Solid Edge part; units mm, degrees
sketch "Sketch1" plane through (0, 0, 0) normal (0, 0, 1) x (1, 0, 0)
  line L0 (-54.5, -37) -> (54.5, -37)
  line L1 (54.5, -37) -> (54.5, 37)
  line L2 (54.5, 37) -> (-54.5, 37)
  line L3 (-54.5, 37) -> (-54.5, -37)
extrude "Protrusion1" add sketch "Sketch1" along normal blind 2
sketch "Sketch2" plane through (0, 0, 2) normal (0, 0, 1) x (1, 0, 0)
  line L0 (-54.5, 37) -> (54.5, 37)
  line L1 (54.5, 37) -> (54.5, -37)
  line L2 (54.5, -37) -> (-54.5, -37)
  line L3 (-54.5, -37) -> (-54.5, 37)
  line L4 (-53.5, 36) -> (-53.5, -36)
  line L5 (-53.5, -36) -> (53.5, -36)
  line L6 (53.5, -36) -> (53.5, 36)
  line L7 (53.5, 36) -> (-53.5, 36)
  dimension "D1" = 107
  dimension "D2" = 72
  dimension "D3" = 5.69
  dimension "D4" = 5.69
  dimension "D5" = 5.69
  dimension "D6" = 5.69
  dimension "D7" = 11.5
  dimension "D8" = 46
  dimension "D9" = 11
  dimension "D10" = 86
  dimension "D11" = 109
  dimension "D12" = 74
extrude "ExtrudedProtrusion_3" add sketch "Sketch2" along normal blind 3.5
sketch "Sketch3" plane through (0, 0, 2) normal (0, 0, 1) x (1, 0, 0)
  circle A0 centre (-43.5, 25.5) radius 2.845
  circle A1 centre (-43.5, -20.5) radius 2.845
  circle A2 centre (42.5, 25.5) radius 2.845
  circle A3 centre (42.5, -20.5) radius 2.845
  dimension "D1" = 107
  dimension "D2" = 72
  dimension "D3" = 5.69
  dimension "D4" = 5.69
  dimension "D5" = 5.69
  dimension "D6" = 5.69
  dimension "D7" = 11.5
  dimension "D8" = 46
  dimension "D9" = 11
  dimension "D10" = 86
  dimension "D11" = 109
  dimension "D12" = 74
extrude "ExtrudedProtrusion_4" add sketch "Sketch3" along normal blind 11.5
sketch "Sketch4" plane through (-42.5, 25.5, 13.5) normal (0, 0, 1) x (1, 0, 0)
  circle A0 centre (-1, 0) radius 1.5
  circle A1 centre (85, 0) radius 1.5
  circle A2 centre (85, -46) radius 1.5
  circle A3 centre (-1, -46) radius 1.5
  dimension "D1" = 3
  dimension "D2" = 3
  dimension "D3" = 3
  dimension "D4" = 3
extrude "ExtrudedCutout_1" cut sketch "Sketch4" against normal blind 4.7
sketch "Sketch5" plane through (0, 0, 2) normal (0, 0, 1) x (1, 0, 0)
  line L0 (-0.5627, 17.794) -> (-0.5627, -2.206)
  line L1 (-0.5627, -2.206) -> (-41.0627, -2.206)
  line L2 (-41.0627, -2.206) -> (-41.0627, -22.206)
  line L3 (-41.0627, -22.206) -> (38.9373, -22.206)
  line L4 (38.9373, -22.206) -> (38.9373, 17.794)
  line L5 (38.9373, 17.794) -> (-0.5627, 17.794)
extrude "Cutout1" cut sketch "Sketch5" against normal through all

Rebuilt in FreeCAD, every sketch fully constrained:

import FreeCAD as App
import Part
import Sketcher

V = App.Vector
Q = App.Units.Quantity

doc = App.newDocument("Part")
body = doc.addObject("PartDesign::Body", "Body")

sketch1 = body.newObject("Sketcher::SketchObject", "Sketch")
sketch1.AttachmentSupport = (doc.getObject("XY_Plane"), [""])
sketch1.MapMode = "FlatFace"
sketch1.addGeometry([
    Part.LineSegment(V(-54, 37, 0), V(-54, -37, 0)),
    Part.LineSegment(V(-54, -37, 0), V(54, -37, 0)),
    Part.LineSegment(V(54, -37, 0), V(54, 37, 0)),
    Part.LineSegment(V(54, 37, 0), V(-54, 37, 0)),
], False)
sketch1.addConstraint([
    Sketcher.Constraint("Coincident", 0, 2, 1, 1),
    Sketcher.Constraint("Coincident", 1, 2, 2, 1),
    Sketcher.Constraint("Coincident", 2, 2, 3, 1),
    Sketcher.Constraint("Coincident", 3, 2, 0, 1),
    Sketcher.Constraint("Vertical", 0),
    Sketcher.Constraint("Horizontal", 1),
    Sketcher.Constraint("Vertical", 2),
    Sketcher.Constraint("Horizontal", 3),
    Sketcher.Constraint("Symmetric", 0, 2, 2, 2, -1, 1),
    Sketcher.Constraint("DistanceX", 1, 1, 1, 2, Q("109 mm")),
    Sketcher.Constraint("DistanceY", 0, 2, 0, 1, Q("74 mm")),
])
pad1 = body.newObject("PartDesign::Pad", "Pad")
pad1.Profile = sketch1
pad1.Length = 2

sketch2 = body.newObject("Sketcher::SketchObject", "Sketch001")
sketch2.AttachmentSupport = (doc.getObject("XY_Plane"), [""])
sketch2.MapMode = "FlatFace"
sketch2.AttachmentOffset = App.Placement(V(0, 0, 2), App.Rotation())
sketch2.addGeometry([
    Part.LineSegment(V(54, 37, 0), V(-54, 37, 0)),
    Part.LineSegment(V(-54, 37, 0), V(-54, -37, 0)),
    Part.LineSegment(V(-54, -37, 0), V(54, -37, 0)),
    Part.LineSegment(V(54, -37, 0), V(54, 37, 0)),
    Part.LineSegment(V(-54, -36, 0), V(-54, 36, 0)),
    Part.LineSegment(V(-54, 36, 0), V(54, 36, 0)),
    Part.LineSegment(V(54, 36, 0), V(54, -36, 0)),
    Part.LineSegment(V(54, -36, 0), V(-54, -36, 0)),
], False)
sketch2.addConstraint([
    Sketcher.Constraint("Coincident", 0, 2, 1, 1),
    Sketcher.Constraint("Coincident", 1, 2, 2, 1),
    Sketcher.Constraint("Coincident", 2, 2, 3, 1),
    Sketcher.Constraint("Coincident", 3, 2, 0, 1),
    Sketcher.Constraint("Coincident", 4, 2, 5, 1),
    Sketcher.Constraint("Coincident", 5, 2, 6, 1),
    Sketcher.Constraint("Coincident", 6, 2, 7, 1),
    Sketcher.Constraint("Coincident", 7, 2, 4, 1),
    Sketcher.Constraint("Horizontal", 0),
    Sketcher.Constraint("Vertical", 1),
    Sketcher.Constraint("Horizontal", 2),
    Sketcher.Constraint("Vertical", 3),
    Sketcher.Constraint("Vertical", 4),
    Sketcher.Constraint("Horizontal", 5),
    Sketcher.Constraint("Vertical", 6),
    Sketcher.Constraint("Horizontal", 7),
    Sketcher.Constraint("Symmetric", 0, 2, 2, 2, -1, 1),
    Sketcher.Constraint("Symmetric", 4, 2, 6, 2, -1, 1),
    Sketcher.Constraint("DistanceX", 0, 2, 0, 1, Q("109 mm")),
    Sketcher.Constraint("DistanceX", 5, 1, 5, 2, Q("107 mm")),
    Sketcher.Constraint("DistanceY", 1, 2, 1, 1, Q("74 mm")),
    Sketcher.Constraint("DistanceY", 4, 1, 4, 2, Q("72 mm")),
])
pad2 = body.newObject("PartDesign::Pad", "Pad001")
pad2.Profile = sketch2
pad2.Length = 3.5

sketch3 = body.newObject("Sketcher::SketchObject", "Sketch002")
sketch3.AttachmentSupport = (doc.getObject("XY_Plane"), [""])
sketch3.MapMode = "FlatFace"
sketch3.AttachmentOffset = App.Placement(V(0, 0, 2), App.Rotation())
sketch3.addGeometry([
    Part.Circle(V(-43.5, 25.5, 0), V(0, 0, 1), 2.8),
    Part.Circle(V(-43.5, -20.5, 0), V(0, 0, 1), 2.8),
    Part.Circle(V(42.5, 25.5, 0), V(0, 0, 1), 2.8),
    Part.Circle(V(42.5, -20.5, 0), V(0, 0, 1), 2.8),
], False)
sketch3.addConstraint([
    Sketcher.Constraint("Equal", 0, 1),
    Sketcher.Constraint("Equal", 1, 2),
    Sketcher.Constraint("Equal", 2, 3),
    Sketcher.Constraint("Horizontal", 0, 3, 2, 3),
    Sketcher.Constraint("Horizontal", 1, 3, 3, 3),
    Sketcher.Constraint("Vertical", 0, 3, 1, 3),
    Sketcher.Constraint("Vertical", 2, 3, 3, 3),
    Sketcher.Constraint("Diameter", 0, Q("5.69 mm")),
    Sketcher.Constraint("DistanceY", 1, 3, 0, 3, Q("46 mm")),
    Sketcher.Constraint("DistanceX", 0, 3, 2, 3, Q("86 mm")),
    Sketcher.Constraint("DistanceX", 0, 3, -1, 1, Q("43.5 mm")),
    Sketcher.Constraint("DistanceY", -1, 1, 0, 3, Q("25.5 mm")),
])
pad3 = body.newObject("PartDesign::Pad", "Pad002")
pad3.Profile = sketch3
pad3.Length = 11.5

sketch4 = body.newObject("Sketcher::SketchObject", "Sketch003")
sketch4.AttachmentSupport = (doc.getObject("XY_Plane"), [""])
sketch4.MapMode = "FlatFace"
sketch4.AttachmentOffset = App.Placement(V(0, 0, 13.5), App.Rotation())
sketch4.addGeometry([
    Part.Circle(V(-43.5, 25.5, 0), V(0, 0, 1), 1.5),
    Part.Circle(V(42.5, 25.5, 0), V(0, 0, 1), 1.5),
    Part.Circle(V(42.5, -20.5, 0), V(0, 0, 1), 1.5),
    Part.Circle(V(-43.5, -20.5, 0), V(0, 0, 1), 1.5),
], False)
sketch4.addConstraint([
    Sketcher.Constraint("Equal", 0, 1),
    Sketcher.Constraint("Equal", 1, 2),
    Sketcher.Constraint("Equal", 2, 3),
    Sketcher.Constraint("Horizontal", 0, 3, 1, 3),
    Sketcher.Constraint("Horizontal", 2, 3, 3, 3),
    Sketcher.Constraint("Vertical", 1, 3, 2, 3),
    Sketcher.Constraint("Vertical", 0, 3, 3, 3),
    Sketcher.Constraint("Diameter", 0, Q("3 mm")),
    Sketcher.Constraint("DistanceX", 0, 3, 1, 3, Q("86 mm")),
    Sketcher.Constraint("DistanceY", 2, 3, 1, 3, Q("46 mm")),
    Sketcher.Constraint("DistanceX", 0, 3, -1, 1, Q("43.5 mm")),
    Sketcher.Constraint("DistanceY", -1, 1, 0, 3, Q("25.5 mm")),
])
pocket1 = body.newObject("PartDesign::Pocket", "Pocket")
pocket1.Profile = sketch4
pocket1.Length = 4.7

sketch5 = body.newObject("Sketcher::SketchObject", "Sketch004")
sketch5.AttachmentSupport = (doc.getObject("XY_Plane"), [""])
sketch5.MapMode = "FlatFace"
sketch5.AttachmentOffset = App.Placement(V(0, 0, 2), App.Rotation())
sketch5.addGeometry([
    Part.LineSegment(V(39, 18, 0), V(-1, 18, 0)),
    Part.LineSegment(V(-1, 18, 0), V(-1, -2, 0)),
    Part.LineSegment(V(-1, -2, 0), V(-41, -2, 0)),
    Part.LineSegment(V(-41, -2, 0), V(-41, -22, 0)),
    Part.LineSegment(V(-41, -22, 0), V(39, -22, 0)),
    Part.LineSegment(V(39, -22, 0), V(39, 18, 0)),
], False)
sketch5.addConstraint([
    Sketcher.Constraint("Coincident", 0, 2, 1, 1),
    Sketcher.Constraint("Coincident", 1, 2, 2, 1),
    Sketcher.Constraint("Coincident", 2, 2, 3, 1),
    Sketcher.Constraint("Coincident", 3, 2, 4, 1),
    Sketcher.Constraint("Coincident", 4, 2, 5, 1),
    Sketcher.Constraint("Coincident", 5, 2, 0, 1),
    Sketcher.Constraint("Horizontal", 0),
    Sketcher.Constraint("Vertical", 1),
    Sketcher.Constraint("Horizontal", 2),
    Sketcher.Constraint("Vertical", 3),
    Sketcher.Constraint("Horizontal", 4),
    Sketcher.Constraint("Vertical", 5),
    Sketcher.Constraint("Equal", 1, 3),
    Sketcher.Constraint("DistanceX", 4, 1, 4, 2, Q("80 mm")),
    Sketcher.Constraint("DistanceY", 1, 2, 1, 1, Q("20 mm")),
    Sketcher.Constraint("DistanceX", 0, 2, 0, 1, Q("39.5 mm")),
    Sketcher.Constraint("DistanceY", -1, 1, 0, 2, Q("17.794 mm")),
    Sketcher.Constraint("DistanceX", 0, 2, -1, 1, Q("0.5627 mm")),
])
pocket2 = body.newObject("PartDesign::Pocket", "Pocket001")
pocket2.Profile = sketch5
pocket2.Type = "ThroughAll"

doc.recompute()
